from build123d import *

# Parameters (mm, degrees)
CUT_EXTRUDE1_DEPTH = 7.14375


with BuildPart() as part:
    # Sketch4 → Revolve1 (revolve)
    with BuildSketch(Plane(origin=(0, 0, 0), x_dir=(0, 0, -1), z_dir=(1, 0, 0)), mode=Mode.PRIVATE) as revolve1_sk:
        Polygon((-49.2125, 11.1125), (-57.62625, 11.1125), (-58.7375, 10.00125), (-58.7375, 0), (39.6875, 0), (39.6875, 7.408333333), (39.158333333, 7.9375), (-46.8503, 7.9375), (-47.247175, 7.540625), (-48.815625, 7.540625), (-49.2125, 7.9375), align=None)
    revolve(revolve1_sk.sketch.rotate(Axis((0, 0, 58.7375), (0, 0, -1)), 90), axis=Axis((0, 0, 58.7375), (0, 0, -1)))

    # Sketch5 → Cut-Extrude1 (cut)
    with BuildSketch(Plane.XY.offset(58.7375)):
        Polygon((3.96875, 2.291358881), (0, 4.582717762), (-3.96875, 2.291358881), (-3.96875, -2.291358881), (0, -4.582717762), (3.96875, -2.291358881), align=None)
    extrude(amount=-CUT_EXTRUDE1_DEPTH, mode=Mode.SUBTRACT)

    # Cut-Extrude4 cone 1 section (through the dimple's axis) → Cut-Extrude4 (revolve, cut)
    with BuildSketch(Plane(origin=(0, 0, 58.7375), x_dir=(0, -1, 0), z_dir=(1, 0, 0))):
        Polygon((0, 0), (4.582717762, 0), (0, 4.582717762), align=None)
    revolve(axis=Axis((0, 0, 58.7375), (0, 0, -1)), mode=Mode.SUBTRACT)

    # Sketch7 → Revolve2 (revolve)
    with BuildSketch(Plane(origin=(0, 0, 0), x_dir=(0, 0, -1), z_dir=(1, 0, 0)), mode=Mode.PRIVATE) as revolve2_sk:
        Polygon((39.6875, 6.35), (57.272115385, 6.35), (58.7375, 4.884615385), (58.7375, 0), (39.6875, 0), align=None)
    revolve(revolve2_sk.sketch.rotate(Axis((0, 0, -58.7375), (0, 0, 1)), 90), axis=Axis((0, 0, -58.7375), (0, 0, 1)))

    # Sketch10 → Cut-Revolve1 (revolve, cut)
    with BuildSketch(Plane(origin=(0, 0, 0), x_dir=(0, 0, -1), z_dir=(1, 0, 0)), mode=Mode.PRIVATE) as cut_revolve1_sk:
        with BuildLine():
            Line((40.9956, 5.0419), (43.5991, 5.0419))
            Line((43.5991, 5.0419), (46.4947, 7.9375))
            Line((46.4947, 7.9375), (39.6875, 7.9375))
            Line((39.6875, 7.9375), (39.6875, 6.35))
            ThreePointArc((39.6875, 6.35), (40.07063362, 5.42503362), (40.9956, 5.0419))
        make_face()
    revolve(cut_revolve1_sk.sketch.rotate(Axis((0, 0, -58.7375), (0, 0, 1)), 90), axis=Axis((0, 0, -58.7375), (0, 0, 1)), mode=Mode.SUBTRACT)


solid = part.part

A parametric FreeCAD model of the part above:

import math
import FreeCAD as App
import Part
import Sketcher

V = App.Vector
Q = App.Units.Quantity


def add_polygon(sketch, points):
    """Adds a closed chain of lines whose ends are joined by coincident constraints."""
    first, n = sketch.GeometryCount, len(points)
    for a, b in zip(points, points[1:] + points[:1]):
        sketch.addGeometry(Part.LineSegment(App.Vector(*a, 0), App.Vector(*b, 0)), False)
    for i in range(n):
        sketch.addConstraint(Sketcher.Constraint("Coincident", first + i, 2, first + (i + 1) % n, 1))

doc = App.newDocument("Part")
params = doc.addObject("Spreadsheet::Sheet", "Params")
for row, (alias, value) in enumerate([
    ("sketch1_width", "0.125 in"),
    ("sketch1_height", "3.875 in"),
    ("revolution_angle", "360 deg"),
    ("pocket1_length", "0.28125 in"),
    ("groove_angle", "360 deg"),
    ("sketch4_width", "0.25 in"),
    ("sketch4_height", "0.75 in"),
    ("revolution2_angle", "360 deg"),
    ("sketch5_width", "0.0625 in"),
    ("sketch5_height", "0.268 in"),
    ("groove2_angle", "360 deg"),
], start=1):
    params.set(f"A{row}", alias)
    params.set(f"B{row}", "=" + value)
    params.setAlias(f"B{row}", alias)

body = doc.addObject("PartDesign::Body", "Body")

# Sketch on YZ plane
sketch1 = body.newObject("Sketcher::SketchObject", "Sketch")
sketch1.AttachmentSupport = (doc.getObject("YZ_Plane"), [""])
sketch1.MapMode = "FlatFace"
add_polygon(sketch1, [(11.1, 49.2), (11.1, 57.6), (10, 58.7), (0, 58.7), (0, -39.7), (7.4, -39.7), (7.9, -39.2), (7.9, 46.9), (7.5, 47.2), (7.5, 48.8), (7.9, 49.2)])  # lines 0-10
sketch1.addConstraint([
    Sketcher.Constraint("Vertical", 0),
    Sketcher.Constraint("Horizontal", 2),
    Sketcher.Constraint("Vertical", 3),
    Sketcher.Constraint("Horizontal", 4),
    Sketcher.Constraint("Vertical", 6),
    Sketcher.Constraint("Vertical", 8),
    Sketcher.Constraint("Horizontal", 10),
    Sketcher.Constraint("PointOnObject", 2, 2, -2),
    Sketcher.Constraint("Perpendicular", 1, 5),
    Sketcher.Constraint("Perpendicular", 5, 7),
    Sketcher.Constraint("Perpendicular", 7, 9),
    Sketcher.Constraint("Vertical", 6, 2, 9, 2),
    Sketcher.Constraint("Equal", 7, 9),
    Sketcher.Constraint("DistanceX", 10, 1, 10, 2, Q("0.125 in")),
    Sketcher.Constraint("DistanceY", 3, 2, 3, 1, Q("3.875 in")),
    Sketcher.Constraint("DistanceX", -1, 1, 0, 2, Q("0.4375 in")),
    Sketcher.Constraint("DistanceY", -1, 1, 1, 2, Q("2.3125 in")),
    Sketcher.Constraint("DistanceX", -1, 1, 7, 2, Q("0.296875 in")),
    Sketcher.Constraint("DistanceY", -1, 1, 8, 2, Q("1.921875 in")),
    Sketcher.Constraint("DistanceY", 6, 2, 1, 2, Q("0.468 in")),
    Sketcher.Constraint("DistanceX", 2, 2, 2, 1, Q("10.00125 mm")),
    Sketcher.Constraint("DistanceX", 4, 1, 4, 2, Q("7.408333 mm")),
])
sketch1.setExpression("Constraints[24]", "Params.sketch1_width")
sketch1.setExpression("Constraints[25]", "Params.sketch1_height")
revolution = body.newObject("PartDesign::Revolution", "Revolution")
revolution.Profile = sketch1
revolution.ReferenceAxis = (sketch1, ["V_Axis"])
revolution.setExpression("Angle", "Params.revolution_angle")

# Sketch on XY plane
sketch2 = body.newObject("Sketcher::SketchObject", "Sketch001")
sketch2.AttachmentSupport = (doc.getObject("XY_Plane"), [""])
sketch2.MapMode = "FlatFace"
sketch2.AttachmentOffset = App.Placement(V(0, 0, 2.3125 * 25.4), App.Rotation())
add_polygon(sketch2, [(4, 2.3), (0, 4.6), (-4, 2.3), (-4, -2.3), (0, -4.6), (4, -2.3)])  # lines 0-5
sketch2.addConstraint([
    Sketcher.Constraint("Vertical", 2),
    Sketcher.Constraint("Vertical", 5),
    Sketcher.Constraint("Symmetric", 0, 2, 3, 2, -1, 1),
    Sketcher.Constraint("Symmetric", 1, 2, 4, 2, -1, 1),
    Sketcher.Constraint("PointOnObject", 0, 2, -2),
    Sketcher.Constraint("Parallel", 0, 3),
    Sketcher.Constraint("Horizontal", 2, 2, 4, 2),
    Sketcher.Constraint("Angle", 0, Q("150 deg")),
    Sketcher.Constraint("DistanceX", 1, 2, -1, 1, Q("0.15625 in")),
    Sketcher.Constraint("DistanceY", 2, 2, 2, 1, Q("4.582718 mm")),
])
pocket1 = body.newObject("PartDesign::Pocket", "Pocket")
pocket1.Profile = sketch2
pocket1.setExpression("Length", "Params.pocket1_length")

# Sketch on YZ plane
sketch3 = body.newObject("Sketcher::SketchObject", "Sketch002")
sketch3.AttachmentSupport = (doc.getObject("YZ_Plane"), [""])
sketch3.MapMode = "FlatFace"
add_polygon(sketch3, [(0, 58.7), (-4.6, 58.7), (0, 54.2)])  # lines 0-2
sketch3.addConstraint([
    Sketcher.Constraint("Horizontal", 0),
    Sketcher.Constraint("Vertical", 2),
    Sketcher.Constraint("PointOnObject", 1, 2, -2),
    Sketcher.Constraint("Equal", 0, 2),
    Sketcher.Constraint("DistanceY", -1, 1, 0, 2, Q("2.3125 in")),
    Sketcher.Constraint("Distance", 1, Q("6.480942 mm")),
])
groove = body.newObject("PartDesign::Groove", "Groove")
groove.Profile = sketch3
groove.ReferenceAxis = (sketch3, ["V_Axis"])
groove.setExpression("Angle", "Params.groove_angle")

# Sketch on YZ plane
sketch4 = body.newObject("Sketcher::SketchObject", "Sketch003")
sketch4.AttachmentSupport = (doc.getObject("YZ_Plane"), [""])
sketch4.MapMode = "FlatFace"
add_polygon(sketch4, [(6.3, -57.3), (6.3, -39.7), (0, -39.7), (0, -58.7), (4.9, -58.7)])  # lines 0-4
sketch4.addConstraint([
    Sketcher.Constraint("Vertical", 0),
    Sketcher.Constraint("Horizontal", 1),
    Sketcher.Constraint("Vertical", 2),
    Sketcher.Constraint("Horizontal", 3),
    Sketcher.Constraint("PointOnObject", 1, 2, -2),
    Sketcher.Constraint("Angle", 4, Q("45 deg")),
    Sketcher.Constraint("DistanceX", 1, 2, 1, 1, Q("0.25 in")),
    Sketcher.Constraint("DistanceY", 2, 2, 2, 1, Q("0.75 in")),
    Sketcher.Constraint("DistanceY", 0, 2, -1, 1, Q("1.5625 in")),
    Sketcher.Constraint("DistanceX", 3, 1, 3, 2, Q("4.884615 mm")),
])
sketch4.setExpression("Constraints[11]", "Params.sketch4_width")
sketch4.setExpression("Constraints[12]", "Params.sketch4_height")
revolution2 = body.newObject("PartDesign::Revolution", "Revolution001")
revolution2.Profile = sketch4
revolution2.ReferenceAxis = (sketch4, ["V_Axis"])
revolution2.setExpression("Angle", "Params.revolution2_angle")

# Sketch on YZ plane
sketch5 = body.newObject("Sketcher::SketchObject", "Sketch004")
sketch5.AttachmentSupport = (doc.getObject("YZ_Plane"), [""])
sketch5.MapMode = "FlatFace"
sketch5.addGeometry([
    Part.LineSegment(V(5, -41, 0), V(5, -43.6, 0)),  # 0
    Part.LineSegment(V(5, -43.6, 0), V(7.9, -46.5, 0)),  # 1
    Part.LineSegment(V(7.9, -46.5, 0), V(7.9, -39.7, 0)),  # 2
    Part.LineSegment(V(7.9, -39.7, 0), V(6.3, -39.7, 0)),  # 3
    Part.ArcOfCircle(Part.Circle(V(6.4, -41, 0), V(0, 0, 1), 1.3), math.radians(90), math.radians(180)),  # 4
], False)
sketch5.addConstraint([
    Sketcher.Constraint("Coincident", 0, 2, 1, 1),
    Sketcher.Constraint("Coincident", 1, 2, 2, 1),
    Sketcher.Constraint("Coincident", 2, 2, 3, 1),
    Sketcher.Constraint("Tangent", 3, 2, 4, 1),
    Sketcher.Constraint("Tangent", 4, 2, 0, 1),
    Sketcher.Constraint("Vertical", 0),
    Sketcher.Constraint("Vertical", 2),
    Sketcher.Constraint("Horizontal", 3),
    Sketcher.Constraint("Angle", 1, Q("-45 deg")),
    Sketcher.Constraint("Radius", 4, Q("0.0515 in")),
    Sketcher.Constraint("DistanceX", 3, 2, 3, 1, Q("0.0625 in")),
    Sketcher.Constraint("DistanceY", 2, 1, 2, 2, Q("0.268 in")),
    Sketcher.Constraint("DistanceX", -1, 1, 4, 3, Q("0.25 in")),
    Sketcher.Constraint("DistanceY", 4, 3, -1, 1, Q("1.614 in")),
])
sketch5.setExpression("Constraints[10]", "Params.sketch5_width")
sketch5.setExpression("Constraints[11]", "Params.sketch5_height")
groove2 = body.newObject("PartDesign::Groove", "Groove001")
groove2.Profile = sketch5
groove2.ReferenceAxis = (sketch5, ["V_Axis"])
groove2.setExpression("Angle", "Params.groove2_angle")

doc.recompute()
